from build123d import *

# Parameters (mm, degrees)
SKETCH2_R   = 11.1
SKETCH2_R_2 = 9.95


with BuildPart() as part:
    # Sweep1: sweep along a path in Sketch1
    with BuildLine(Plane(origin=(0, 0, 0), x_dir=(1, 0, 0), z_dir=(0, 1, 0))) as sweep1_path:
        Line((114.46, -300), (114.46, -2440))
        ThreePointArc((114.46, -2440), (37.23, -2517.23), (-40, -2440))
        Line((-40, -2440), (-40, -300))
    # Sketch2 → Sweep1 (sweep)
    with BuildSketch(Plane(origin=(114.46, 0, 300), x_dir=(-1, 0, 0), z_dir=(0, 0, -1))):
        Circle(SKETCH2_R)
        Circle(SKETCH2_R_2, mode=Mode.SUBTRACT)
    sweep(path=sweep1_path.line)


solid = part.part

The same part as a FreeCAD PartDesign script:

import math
import FreeCAD as App
import Part
import Sketcher
Q = App.Units.Quantity

doc = App.newDocument("Part")
body = doc.addObject("PartDesign::Body", "Body")

# Sketch on XY plane
sketch1 = body.newObject("Sketcher::SketchObject", "Sketch")
sketch1.AttachmentSupport = (doc.getObject("XY_Plane"), [""])
sketch1.MapMode = "FlatFace"
sketch1.AttachmentOffset = App.Placement(App.Vector(0, 0, 300), App.Rotation())
sketch1.addGeometry(Part.Circle(App.Vector(114, 0, 0), App.Vector(0, 0, 1), 11), False)
sketch1.addGeometry(Part.Circle(App.Vector(114, 0, 0), App.Vector(0, 0, 1), 10), False)
sketch1.addConstraint(Sketcher.Constraint("Coincident", 1, 3, 0, 3))
sketch1.addConstraint(Sketcher.Constraint("PointOnObject", 0, 3, -1))
sketch1.addConstraint(Sketcher.Constraint("Diameter", 0, Q("22.2 mm")))
sketch1.addConstraint(Sketcher.Constraint("Diameter", 1, Q("19.9 mm")))
sketch1.addConstraint(Sketcher.Constraint("DistanceX", -1, 1, 0, 3, Q("114.46 mm")))

# Sketch on XZ plane
sketch2 = body.newObject("Sketcher::SketchObject", "Sketch001")
sketch2.AttachmentSupport = (doc.getObject("XZ_Plane"), [""])
sketch2.MapMode = "FlatFace"
sketch2.addGeometry(Part.LineSegment(App.Vector(114, 300, 0), App.Vector(114, 2440, 0)), False)
sketch2.addGeometry(Part.ArcOfCircle(Part.Circle(App.Vector(37, 2440, 0), App.Vector(0, 0, 1), 77), math.radians(0), math.radians(180)), False)
sketch2.addGeometry(Part.LineSegment(App.Vector(-40, 2440, 0), App.Vector(-40, 300, 0)), False)
sketch2.addConstraint(Sketcher.Constraint("Tangent", 0, 2, 1, 1))
sketch2.addConstraint(Sketcher.Constraint("Tangent", 1, 2, 2, 1))
sketch2.addConstraint(Sketcher.Constraint("Vertical", 0))
sketch2.addConstraint(Sketcher.Constraint("Vertical", 2))
sketch2.addConstraint(Sketcher.Constraint("Horizontal", 0, 1, 2, 2))
sketch2.addConstraint(Sketcher.Constraint("DistanceY", 0, 1, 0, 2, Q("2140 mm")))
sketch2.addConstraint(Sketcher.Constraint("Radius", 1, Q("77.23 mm")))
sketch2.addConstraint(Sketcher.Constraint("DistanceY", -1, 1, 1, 3, Q("2440 mm")))
sketch2.addConstraint(Sketcher.Constraint("DistanceX", 1, 2, -1, 1, Q("40 mm")))
doc.recompute()

additivepipe = body.newObject("PartDesign::AdditivePipe", "AdditivePipe")
additivepipe.Profile = sketch1
additivepipe.Spine = (sketch2, ["Edge1", "Edge2", "Edge3"])

doc.recompute()
